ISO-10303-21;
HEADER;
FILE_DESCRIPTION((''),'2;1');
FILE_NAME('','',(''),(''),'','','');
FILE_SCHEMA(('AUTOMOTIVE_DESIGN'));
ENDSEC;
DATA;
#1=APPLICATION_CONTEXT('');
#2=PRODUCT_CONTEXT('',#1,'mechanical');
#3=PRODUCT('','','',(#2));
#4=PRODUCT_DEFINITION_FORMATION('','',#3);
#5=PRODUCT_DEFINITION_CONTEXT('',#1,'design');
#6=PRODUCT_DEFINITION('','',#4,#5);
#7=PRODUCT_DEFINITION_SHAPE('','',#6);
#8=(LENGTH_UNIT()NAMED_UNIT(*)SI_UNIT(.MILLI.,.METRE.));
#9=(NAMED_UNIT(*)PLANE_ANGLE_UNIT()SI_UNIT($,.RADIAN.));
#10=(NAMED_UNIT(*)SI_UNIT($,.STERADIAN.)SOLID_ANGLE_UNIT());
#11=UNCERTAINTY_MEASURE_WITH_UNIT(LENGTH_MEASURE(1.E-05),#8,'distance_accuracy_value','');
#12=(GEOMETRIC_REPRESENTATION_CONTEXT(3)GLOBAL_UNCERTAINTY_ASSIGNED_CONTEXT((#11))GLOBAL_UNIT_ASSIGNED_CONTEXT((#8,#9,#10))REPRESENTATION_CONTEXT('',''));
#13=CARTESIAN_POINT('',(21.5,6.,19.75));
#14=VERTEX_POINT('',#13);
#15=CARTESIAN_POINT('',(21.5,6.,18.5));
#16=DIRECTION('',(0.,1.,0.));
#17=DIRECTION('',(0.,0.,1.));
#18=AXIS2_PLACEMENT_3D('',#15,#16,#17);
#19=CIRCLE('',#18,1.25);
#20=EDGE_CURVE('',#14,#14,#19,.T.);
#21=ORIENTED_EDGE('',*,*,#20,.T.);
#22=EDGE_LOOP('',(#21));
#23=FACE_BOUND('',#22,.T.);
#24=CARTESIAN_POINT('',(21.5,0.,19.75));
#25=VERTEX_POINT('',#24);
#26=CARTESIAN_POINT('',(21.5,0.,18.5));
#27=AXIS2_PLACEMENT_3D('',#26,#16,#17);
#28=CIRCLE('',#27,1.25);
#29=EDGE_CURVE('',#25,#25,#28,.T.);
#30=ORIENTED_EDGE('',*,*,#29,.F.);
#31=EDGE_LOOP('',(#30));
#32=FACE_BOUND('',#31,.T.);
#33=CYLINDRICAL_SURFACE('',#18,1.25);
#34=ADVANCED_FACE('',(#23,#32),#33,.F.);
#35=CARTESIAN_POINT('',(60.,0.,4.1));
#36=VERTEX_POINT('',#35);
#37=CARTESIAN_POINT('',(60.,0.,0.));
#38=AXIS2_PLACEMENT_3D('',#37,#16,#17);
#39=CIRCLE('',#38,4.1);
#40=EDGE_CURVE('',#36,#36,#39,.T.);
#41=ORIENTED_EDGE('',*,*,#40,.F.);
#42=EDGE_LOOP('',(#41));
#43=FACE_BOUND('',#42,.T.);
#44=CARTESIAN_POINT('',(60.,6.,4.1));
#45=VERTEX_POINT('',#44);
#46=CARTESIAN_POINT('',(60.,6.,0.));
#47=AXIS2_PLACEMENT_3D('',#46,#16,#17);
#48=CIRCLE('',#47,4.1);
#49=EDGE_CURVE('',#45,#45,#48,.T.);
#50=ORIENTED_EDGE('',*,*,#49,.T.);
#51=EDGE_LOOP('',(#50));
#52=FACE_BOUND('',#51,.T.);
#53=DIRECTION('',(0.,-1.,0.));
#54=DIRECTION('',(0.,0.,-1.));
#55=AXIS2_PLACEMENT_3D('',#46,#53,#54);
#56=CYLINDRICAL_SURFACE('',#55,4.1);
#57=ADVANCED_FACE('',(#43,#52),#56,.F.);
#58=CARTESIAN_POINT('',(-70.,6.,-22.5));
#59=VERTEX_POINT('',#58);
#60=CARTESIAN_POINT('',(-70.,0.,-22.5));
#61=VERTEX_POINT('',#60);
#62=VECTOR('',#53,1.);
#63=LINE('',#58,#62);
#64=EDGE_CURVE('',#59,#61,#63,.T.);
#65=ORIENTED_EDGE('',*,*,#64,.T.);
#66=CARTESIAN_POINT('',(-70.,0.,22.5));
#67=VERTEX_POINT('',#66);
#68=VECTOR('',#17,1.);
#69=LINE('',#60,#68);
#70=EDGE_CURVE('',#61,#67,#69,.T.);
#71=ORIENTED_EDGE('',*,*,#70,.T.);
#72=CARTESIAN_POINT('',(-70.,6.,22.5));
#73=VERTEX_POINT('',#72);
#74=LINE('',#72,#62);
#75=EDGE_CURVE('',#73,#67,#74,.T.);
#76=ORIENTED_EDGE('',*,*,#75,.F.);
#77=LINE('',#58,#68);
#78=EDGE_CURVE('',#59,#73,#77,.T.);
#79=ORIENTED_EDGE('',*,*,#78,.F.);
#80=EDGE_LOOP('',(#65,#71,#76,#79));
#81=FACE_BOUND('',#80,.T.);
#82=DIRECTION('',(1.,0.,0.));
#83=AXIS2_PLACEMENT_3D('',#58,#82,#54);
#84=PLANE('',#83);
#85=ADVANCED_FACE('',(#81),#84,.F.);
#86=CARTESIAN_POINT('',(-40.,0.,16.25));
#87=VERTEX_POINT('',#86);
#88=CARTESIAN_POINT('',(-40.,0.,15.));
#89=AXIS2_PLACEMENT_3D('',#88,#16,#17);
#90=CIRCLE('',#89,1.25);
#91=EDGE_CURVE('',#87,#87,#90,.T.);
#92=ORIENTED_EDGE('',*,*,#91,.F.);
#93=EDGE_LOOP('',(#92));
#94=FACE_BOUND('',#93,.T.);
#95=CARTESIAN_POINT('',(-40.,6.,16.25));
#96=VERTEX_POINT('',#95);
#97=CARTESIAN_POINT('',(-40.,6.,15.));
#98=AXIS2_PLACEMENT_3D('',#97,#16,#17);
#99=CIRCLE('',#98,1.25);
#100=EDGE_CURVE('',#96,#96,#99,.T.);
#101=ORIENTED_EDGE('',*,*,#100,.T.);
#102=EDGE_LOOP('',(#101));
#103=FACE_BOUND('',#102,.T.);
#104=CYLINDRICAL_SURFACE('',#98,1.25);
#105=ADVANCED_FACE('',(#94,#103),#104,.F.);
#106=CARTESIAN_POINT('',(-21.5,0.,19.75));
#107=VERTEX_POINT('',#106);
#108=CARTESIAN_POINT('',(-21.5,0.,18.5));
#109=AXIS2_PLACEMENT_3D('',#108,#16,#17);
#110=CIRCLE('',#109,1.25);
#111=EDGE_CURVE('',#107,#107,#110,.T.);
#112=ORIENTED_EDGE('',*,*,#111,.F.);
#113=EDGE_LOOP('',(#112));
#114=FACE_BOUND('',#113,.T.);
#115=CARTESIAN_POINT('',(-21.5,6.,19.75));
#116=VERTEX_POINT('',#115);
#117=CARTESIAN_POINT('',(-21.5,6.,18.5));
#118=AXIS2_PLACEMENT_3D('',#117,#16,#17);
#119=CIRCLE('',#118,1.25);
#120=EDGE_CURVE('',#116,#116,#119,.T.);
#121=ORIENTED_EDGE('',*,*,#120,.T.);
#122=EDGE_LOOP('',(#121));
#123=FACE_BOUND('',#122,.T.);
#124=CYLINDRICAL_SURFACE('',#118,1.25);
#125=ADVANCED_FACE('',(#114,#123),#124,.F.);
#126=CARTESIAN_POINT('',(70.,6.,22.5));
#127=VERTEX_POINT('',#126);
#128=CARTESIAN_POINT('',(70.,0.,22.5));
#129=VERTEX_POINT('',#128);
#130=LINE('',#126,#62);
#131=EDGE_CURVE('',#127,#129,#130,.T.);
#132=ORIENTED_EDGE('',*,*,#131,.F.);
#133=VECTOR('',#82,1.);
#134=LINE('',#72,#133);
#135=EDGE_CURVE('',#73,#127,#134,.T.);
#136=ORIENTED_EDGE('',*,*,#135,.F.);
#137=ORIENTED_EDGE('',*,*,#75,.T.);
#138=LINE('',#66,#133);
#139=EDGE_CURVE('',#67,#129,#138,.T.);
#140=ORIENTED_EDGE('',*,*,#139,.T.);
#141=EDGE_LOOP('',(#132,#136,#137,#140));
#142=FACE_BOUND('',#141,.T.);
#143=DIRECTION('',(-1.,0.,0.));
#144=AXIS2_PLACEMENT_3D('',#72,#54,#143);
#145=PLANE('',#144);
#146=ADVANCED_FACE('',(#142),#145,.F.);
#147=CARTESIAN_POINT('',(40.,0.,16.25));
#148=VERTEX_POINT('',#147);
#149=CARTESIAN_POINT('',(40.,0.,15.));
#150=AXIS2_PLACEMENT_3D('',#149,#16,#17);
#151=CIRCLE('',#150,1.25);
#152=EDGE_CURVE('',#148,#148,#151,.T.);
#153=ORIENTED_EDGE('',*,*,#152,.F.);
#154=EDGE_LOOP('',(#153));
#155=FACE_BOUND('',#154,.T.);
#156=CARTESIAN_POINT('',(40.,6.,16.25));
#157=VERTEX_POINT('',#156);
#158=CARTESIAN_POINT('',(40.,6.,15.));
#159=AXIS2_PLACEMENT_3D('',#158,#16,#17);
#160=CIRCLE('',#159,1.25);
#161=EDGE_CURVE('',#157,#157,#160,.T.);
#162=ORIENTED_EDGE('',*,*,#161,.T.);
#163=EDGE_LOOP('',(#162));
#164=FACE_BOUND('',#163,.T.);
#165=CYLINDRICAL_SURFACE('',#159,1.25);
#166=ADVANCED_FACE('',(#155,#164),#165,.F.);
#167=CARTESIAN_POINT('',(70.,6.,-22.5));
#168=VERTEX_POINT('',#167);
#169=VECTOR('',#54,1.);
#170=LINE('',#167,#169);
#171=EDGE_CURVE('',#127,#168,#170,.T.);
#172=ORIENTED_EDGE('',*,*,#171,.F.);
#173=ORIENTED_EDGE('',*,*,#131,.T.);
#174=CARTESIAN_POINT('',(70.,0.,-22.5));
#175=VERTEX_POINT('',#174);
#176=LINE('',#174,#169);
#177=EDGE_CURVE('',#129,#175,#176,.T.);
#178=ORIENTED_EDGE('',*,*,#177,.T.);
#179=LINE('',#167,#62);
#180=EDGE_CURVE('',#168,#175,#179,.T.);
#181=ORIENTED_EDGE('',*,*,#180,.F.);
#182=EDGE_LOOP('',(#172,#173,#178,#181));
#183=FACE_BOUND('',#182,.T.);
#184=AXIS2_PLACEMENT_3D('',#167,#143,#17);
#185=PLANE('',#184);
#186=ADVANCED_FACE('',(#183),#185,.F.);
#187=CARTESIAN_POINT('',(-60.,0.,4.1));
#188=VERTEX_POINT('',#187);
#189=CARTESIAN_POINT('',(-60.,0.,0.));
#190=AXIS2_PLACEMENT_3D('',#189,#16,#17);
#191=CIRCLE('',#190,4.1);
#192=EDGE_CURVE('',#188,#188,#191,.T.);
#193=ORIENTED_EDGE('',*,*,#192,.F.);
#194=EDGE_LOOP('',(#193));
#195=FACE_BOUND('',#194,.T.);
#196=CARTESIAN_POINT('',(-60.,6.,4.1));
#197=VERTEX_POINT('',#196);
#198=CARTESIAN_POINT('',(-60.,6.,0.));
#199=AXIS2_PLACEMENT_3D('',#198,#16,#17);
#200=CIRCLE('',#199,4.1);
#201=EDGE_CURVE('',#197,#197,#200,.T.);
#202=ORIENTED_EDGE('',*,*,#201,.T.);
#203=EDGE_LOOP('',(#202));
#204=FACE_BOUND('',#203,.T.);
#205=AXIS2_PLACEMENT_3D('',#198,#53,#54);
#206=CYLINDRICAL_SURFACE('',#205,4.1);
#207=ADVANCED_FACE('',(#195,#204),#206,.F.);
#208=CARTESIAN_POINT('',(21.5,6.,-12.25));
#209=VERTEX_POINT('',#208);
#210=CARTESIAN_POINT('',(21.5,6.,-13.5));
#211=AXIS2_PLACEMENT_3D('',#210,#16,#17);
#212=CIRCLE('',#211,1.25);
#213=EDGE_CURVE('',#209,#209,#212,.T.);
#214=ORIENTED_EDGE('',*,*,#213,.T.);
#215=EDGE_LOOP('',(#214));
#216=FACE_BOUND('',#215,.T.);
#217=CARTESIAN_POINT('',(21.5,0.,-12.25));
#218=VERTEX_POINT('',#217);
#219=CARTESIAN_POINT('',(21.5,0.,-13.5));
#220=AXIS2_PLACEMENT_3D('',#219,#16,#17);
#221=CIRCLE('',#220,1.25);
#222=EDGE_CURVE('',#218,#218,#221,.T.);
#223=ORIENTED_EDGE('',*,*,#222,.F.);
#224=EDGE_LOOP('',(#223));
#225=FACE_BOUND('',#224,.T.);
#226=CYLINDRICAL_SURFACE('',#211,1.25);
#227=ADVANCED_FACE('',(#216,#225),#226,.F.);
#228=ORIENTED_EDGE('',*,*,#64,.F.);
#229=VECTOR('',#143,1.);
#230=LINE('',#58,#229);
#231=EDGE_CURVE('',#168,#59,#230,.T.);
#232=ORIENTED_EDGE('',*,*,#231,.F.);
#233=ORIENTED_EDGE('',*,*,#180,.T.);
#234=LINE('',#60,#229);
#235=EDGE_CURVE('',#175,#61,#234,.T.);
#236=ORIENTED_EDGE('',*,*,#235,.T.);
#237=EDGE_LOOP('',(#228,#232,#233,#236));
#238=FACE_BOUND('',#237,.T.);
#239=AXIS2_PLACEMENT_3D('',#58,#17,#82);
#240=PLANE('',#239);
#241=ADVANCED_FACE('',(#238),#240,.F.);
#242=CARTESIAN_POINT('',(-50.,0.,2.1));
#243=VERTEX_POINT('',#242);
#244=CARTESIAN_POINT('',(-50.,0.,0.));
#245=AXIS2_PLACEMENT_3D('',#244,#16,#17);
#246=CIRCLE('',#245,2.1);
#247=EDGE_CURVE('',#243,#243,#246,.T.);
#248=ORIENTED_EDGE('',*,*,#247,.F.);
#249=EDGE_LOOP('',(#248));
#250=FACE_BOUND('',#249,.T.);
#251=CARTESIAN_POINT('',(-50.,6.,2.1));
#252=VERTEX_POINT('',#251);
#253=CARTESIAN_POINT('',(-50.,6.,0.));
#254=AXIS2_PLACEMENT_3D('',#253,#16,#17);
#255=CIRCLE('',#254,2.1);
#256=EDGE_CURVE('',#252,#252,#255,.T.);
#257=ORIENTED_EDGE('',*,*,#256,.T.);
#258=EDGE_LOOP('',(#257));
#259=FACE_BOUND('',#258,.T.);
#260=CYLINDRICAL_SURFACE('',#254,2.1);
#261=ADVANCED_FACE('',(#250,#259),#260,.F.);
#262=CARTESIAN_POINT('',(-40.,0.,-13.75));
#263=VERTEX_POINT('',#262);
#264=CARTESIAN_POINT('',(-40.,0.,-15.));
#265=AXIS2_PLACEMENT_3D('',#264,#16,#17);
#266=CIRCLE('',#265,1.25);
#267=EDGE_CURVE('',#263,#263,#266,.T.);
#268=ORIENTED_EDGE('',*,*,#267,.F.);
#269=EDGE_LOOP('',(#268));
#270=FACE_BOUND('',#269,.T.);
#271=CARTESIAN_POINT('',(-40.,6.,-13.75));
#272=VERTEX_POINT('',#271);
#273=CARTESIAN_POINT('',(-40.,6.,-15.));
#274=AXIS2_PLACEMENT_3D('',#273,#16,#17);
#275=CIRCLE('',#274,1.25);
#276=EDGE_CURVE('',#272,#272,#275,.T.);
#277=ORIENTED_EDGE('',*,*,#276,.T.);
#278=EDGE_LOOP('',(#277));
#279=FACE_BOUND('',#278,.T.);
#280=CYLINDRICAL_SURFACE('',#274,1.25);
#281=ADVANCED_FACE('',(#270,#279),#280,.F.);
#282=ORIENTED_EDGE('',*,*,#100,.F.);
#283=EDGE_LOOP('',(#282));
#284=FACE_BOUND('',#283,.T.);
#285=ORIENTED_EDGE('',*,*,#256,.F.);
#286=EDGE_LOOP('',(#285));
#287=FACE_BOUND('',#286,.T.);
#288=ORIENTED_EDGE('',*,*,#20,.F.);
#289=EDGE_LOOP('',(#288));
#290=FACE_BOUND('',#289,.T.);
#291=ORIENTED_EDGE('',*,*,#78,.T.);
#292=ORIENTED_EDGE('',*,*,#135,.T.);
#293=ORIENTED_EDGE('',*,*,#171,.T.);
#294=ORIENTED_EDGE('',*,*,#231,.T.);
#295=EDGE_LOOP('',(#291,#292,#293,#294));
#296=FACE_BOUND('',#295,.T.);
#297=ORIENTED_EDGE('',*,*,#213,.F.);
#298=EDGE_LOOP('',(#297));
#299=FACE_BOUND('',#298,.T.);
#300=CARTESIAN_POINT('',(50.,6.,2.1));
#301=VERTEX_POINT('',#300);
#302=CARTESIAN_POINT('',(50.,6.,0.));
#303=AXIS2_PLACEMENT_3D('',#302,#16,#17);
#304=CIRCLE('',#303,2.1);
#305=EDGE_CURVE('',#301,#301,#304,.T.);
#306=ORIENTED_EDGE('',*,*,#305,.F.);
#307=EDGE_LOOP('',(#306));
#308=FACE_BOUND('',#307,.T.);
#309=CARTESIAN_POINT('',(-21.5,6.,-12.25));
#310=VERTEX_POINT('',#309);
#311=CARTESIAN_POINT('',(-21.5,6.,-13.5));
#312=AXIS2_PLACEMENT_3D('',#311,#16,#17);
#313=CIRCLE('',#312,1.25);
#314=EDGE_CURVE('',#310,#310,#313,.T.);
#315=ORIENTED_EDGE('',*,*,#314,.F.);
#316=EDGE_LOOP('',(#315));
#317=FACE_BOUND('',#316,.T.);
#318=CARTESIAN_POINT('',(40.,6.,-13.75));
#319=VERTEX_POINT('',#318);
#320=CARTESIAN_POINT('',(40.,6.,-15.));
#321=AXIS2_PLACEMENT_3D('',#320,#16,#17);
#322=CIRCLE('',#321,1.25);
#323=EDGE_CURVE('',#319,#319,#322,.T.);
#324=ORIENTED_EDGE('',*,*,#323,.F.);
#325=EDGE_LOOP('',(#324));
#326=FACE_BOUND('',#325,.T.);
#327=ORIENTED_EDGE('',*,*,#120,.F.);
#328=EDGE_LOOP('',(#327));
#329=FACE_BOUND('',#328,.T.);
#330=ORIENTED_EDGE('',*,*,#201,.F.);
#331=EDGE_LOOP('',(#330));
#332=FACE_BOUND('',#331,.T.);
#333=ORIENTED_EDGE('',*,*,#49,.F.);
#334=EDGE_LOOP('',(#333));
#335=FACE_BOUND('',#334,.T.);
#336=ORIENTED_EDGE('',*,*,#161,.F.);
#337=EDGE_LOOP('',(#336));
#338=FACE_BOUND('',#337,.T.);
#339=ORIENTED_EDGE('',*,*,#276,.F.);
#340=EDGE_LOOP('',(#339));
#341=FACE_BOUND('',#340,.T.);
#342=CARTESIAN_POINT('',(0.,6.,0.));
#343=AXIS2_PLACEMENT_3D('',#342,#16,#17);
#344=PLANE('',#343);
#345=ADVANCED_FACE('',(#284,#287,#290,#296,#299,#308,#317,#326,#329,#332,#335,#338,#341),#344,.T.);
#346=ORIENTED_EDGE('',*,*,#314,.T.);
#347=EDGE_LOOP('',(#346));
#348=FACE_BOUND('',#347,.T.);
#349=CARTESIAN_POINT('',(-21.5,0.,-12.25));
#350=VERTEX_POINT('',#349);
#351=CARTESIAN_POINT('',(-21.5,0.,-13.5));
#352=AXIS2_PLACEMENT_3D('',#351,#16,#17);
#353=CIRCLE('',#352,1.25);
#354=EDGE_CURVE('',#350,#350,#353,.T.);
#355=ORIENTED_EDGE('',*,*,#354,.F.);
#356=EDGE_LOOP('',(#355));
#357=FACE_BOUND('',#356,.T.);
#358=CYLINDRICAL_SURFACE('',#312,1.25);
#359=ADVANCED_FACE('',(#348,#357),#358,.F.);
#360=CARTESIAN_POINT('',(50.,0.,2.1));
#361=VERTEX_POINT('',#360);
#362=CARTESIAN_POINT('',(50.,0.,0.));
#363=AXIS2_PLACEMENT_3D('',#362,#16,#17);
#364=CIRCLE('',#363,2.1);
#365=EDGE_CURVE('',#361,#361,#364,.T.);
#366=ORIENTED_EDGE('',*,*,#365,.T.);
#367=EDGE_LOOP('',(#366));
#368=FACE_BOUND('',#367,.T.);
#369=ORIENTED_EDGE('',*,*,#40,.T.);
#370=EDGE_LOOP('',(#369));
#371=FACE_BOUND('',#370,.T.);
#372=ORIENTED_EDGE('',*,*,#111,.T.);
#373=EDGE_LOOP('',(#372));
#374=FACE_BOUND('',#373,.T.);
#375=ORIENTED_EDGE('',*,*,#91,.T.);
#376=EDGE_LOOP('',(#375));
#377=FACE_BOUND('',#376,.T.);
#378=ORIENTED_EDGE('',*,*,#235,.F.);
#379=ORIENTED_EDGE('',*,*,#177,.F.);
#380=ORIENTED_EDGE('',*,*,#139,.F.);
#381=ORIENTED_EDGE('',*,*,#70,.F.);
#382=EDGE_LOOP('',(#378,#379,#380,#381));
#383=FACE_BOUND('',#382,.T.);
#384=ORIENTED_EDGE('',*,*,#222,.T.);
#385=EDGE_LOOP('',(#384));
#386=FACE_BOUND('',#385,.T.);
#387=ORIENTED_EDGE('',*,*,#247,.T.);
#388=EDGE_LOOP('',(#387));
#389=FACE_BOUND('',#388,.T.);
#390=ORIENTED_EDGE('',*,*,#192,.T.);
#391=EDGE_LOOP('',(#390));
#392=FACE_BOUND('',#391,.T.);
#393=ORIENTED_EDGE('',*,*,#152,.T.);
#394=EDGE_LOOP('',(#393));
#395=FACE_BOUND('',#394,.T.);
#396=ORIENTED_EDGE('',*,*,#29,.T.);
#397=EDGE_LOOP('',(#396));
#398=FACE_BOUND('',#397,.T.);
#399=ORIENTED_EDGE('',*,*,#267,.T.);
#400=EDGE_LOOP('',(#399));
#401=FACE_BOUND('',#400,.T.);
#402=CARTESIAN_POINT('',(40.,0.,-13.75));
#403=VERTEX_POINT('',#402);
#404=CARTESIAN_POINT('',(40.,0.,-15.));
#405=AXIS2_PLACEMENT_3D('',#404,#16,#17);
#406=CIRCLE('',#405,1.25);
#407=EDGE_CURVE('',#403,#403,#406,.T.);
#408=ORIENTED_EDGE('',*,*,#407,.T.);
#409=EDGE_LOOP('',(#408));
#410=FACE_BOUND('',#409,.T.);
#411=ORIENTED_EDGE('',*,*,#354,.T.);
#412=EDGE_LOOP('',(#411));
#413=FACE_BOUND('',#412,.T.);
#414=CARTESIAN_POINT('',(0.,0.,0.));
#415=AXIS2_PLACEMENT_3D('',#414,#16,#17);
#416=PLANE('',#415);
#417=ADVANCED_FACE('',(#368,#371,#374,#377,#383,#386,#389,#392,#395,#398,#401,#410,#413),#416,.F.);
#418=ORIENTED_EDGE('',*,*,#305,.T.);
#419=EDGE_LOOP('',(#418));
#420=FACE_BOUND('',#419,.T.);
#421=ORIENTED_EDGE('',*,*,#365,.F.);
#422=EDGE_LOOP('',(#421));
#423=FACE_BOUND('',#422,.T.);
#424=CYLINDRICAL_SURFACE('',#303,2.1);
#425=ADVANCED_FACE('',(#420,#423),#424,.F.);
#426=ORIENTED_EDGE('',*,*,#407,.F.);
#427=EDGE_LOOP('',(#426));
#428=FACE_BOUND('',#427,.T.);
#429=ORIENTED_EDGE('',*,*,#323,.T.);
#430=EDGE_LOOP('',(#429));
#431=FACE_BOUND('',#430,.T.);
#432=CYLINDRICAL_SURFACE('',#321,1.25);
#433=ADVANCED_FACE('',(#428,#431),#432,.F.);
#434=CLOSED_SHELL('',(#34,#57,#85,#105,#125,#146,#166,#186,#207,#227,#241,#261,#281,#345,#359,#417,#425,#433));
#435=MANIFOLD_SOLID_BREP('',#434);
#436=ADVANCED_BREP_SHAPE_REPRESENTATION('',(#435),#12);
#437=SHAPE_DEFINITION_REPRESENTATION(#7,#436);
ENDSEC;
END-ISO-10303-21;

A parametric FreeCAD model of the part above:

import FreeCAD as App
import Part
import Sketcher

V = App.Vector

doc = App.newDocument("Part")
body = doc.addObject("PartDesign::Body", "Body")

sketch1 = body.newObject("Sketcher::SketchObject", "Sketch")
sketch1.AttachmentSupport = (doc.getObject("XZ_Plane"), [""])
sketch1.MapMode = "FlatFace"
sketch1.addGeometry([
    Part.LineSegment(V(-70, -22.5, 0), V(-70, 22.5, 0)),
    Part.LineSegment(V(-70, 22.5, 0), V(70, 22.5, 0)),
    Part.LineSegment(V(70, 22.5, 0), V(70, -22.5, 0)),
    Part.LineSegment(V(70, -22.5, 0), V(-70, -22.5, 0)),
    Part.Circle(V(-40, 15, 0), V(0, 0, 1), 0.5),
    Part.Circle(V(40, 15, 0), V(0, 0, 1), 0.5),
    Part.Circle(V(-60, 0, 0), V(0, 0, 1), 4.1),
    Part.Circle(V(-40, -15, 0), V(0, 0, 1), 0.5),
    Part.Circle(V(60, 0, 0), V(0, 0, 1), 4.1),
    Part.Circle(V(40, -15, 0), V(0, 0, 1), 0.5),
], False)
sketch1.addConstraint([
    Sketcher.Constraint("Coincident", 0, 2, 1, 1),
    Sketcher.Constraint("Coincident", 1, 2, 2, 1),
    Sketcher.Constraint("Coincident", 2, 2, 3, 1),
    Sketcher.Constraint("Coincident", 3, 2, 0, 1),
    Sketcher.Constraint("Vertical", 0),
    Sketcher.Constraint("Horizontal", 1),
    Sketcher.Constraint("Vertical", 2),
    Sketcher.Constraint("Horizontal", 3),
    Sketcher.Constraint("Equal", 4, 5),
    Sketcher.Constraint("Equal", 5, 7),
    Sketcher.Constraint("Equal", 6, 8),
    Sketcher.Constraint("Equal", 7, 9),
    Sketcher.Constraint("Symmetric", 5, 3, 7, 3, -1, 1),
    Sketcher.Constraint("Symmetric", 6, 3, 8, 3, -1, 1),
    Sketcher.Constraint("Symmetric", 4, 3, 9, 3, -1, 1),
    Sketcher.Constraint("Symmetric", 0, 2, 2, 2, -1, 1),
    Sketcher.Constraint("Symmetric", 4, 3, 5, 3, -2),
    Sketcher.Constraint("PointOnObject", 6, 3, -1),
    Sketcher.Constraint("Diameter", 4, 1.0),
    Sketcher.Constraint("Diameter", 6, 8.2),
    Sketcher.Constraint("DistanceX", 1, 1, 1, 2, 140.0),
    Sketcher.Constraint("DistanceY", 0, 1, 0, 2, 45.0),
    Sketcher.Constraint("DistanceX", 4, 3, -1, 1, 40.0),
    Sketcher.Constraint("DistanceY", -1, 1, 4, 3, 15.0),
    Sketcher.Constraint("DistanceX", 6, 3, -1, 1, 60.0),
])
pad1 = body.newObject("PartDesign::Pad", "Pad")
pad1.Profile = sketch1
pad1.Length = 6
pad1.Reversed = True

sketch2 = body.newObject("Sketcher::SketchObject", "Sketch001")
sketch2.AttachmentSupport = (doc.getObject("XZ_Plane"), [""])
sketch2.MapMode = "FlatFace"
sketch2.AttachmentOffset = App.Placement(V(0, 0, -6), App.Rotation())
sketch2.addGeometry([
    Part.Circle(V(-40, -15, 0), V(0, 0, 1), 1.25),
    Part.Circle(V(-40, 15, 0), V(0, 0, 1), 1.25),
    Part.Circle(V(40, 15, 0), V(0, 0, 1), 1.25),
    Part.Circle(V(40, -15, 0), V(0, 0, 1), 1.25),
], False)
sketch2.addConstraint([
    Sketcher.Constraint("Equal", 0, 1),
    Sketcher.Constraint("Equal", 1, 2),
    Sketcher.Constraint("Equal", 2, 3),
    Sketcher.Constraint("Symmetric", 0, 3, 2, 3, -1, 1),
    Sketcher.Constraint("Symmetric", 1, 3, 3, 3, -1, 1),
    Sketcher.Constraint("Symmetric", 1, 3, 2, 3, -2),
    Sketcher.Constraint("Diameter", 0, 2.5),
    Sketcher.Constraint("DistanceX", 0, 3, -1, 1, 40.0),
    Sketcher.Constraint("DistanceY", 0, 3, -1, 1, 15.0),
])
doc.recompute()
hole = body.newObject("PartDesign::Hole", "Hole")
hole.Profile = sketch2
hole.ThreadType = "None"
hole.Diameter = 2.5
hole.DepthType = "ThroughAll"
hole.Reversed = True

sketch3 = body.newObject("Sketcher::SketchObject", "Sketch002")
sketch3.AttachmentSupport = (doc.getObject("XZ_Plane"), [""])
sketch3.MapMode = "FlatFace"
sketch3.AttachmentOffset = App.Placement(V(0, 0, -6), App.Rotation())
sketch3.addGeometry([
    Part.Circle(V(-21.5, -13.5, 0), V(0, 0, 1), 1.25),
    Part.Circle(V(21.5, -13.5, 0), V(0, 0, 1), 1.25),
    Part.Circle(V(21.5, 18.5, 0), V(0, 0, 1), 1.25),
    Part.Circle(V(-21.5, 18.5, 0), V(0, 0, 1), 1.25),
], False)
sketch3.addConstraint([
    Sketcher.Constraint("Equal", 0, 1),
    Sketcher.Constraint("Equal", 1, 2),
    Sketcher.Constraint("Equal", 2, 3),
    Sketcher.Constraint("Symmetric", 0, 3, 1, 3, -2),
    Sketcher.Constraint("Symmetric", 2, 3, 3, 3, -2),
    Sketcher.Constraint("Vertical", 1, 3, 2, 3),
    Sketcher.Constraint("Diameter", 0, 2.5),
    Sketcher.Constraint("DistanceX", 0, 3, 1, 3, 43.0),
    Sketcher.Constraint("DistanceY", 1, 3, 2, 3, 32.0),
    Sketcher.Constraint("DistanceY", 0, 3, -1, 1, 13.5),
])
doc.recompute()
hole2 = body.newObject("PartDesign::Hole", "Hole001")
hole2.Profile = sketch3
hole2.ThreadType = "None"
hole2.Diameter = 2.5
hole2.DepthType = "ThroughAll"
hole2.Reversed = True

sketch4 = body.newObject("Sketcher::SketchObject", "Sketch003")
sketch4.AttachmentSupport = (doc.getObject("XZ_Plane"), [""])
sketch4.MapMode = "FlatFace"
sketch4.AttachmentOffset = App.Placement(V(0, 0, -6), App.Rotation())
sketch4.addGeometry([
    Part.Circle(V(50, 0, 0), V(0, 0, 1), 2.1),
    Part.Circle(V(-50, 0, 0), V(0, 0, 1), 2.1),
], False)
sketch4.addConstraint([
    Sketcher.Constraint("Equal", 0, 1),
    Sketcher.Constraint("Symmetric", 0, 3, 1, 3, -1, 1),
    Sketcher.Constraint("PointOnObject", 0, 3, -1),
    Sketcher.Constraint("Diameter", 0, 4.2),
    Sketcher.Constraint("DistanceX", -1, 1, 0, 3, 50.0),
])
doc.recompute()
hole3 = body.newObject("PartDesign::Hole", "Hole002")
hole3.Profile = sketch4
hole3.ThreadType = "None"
hole3.Diameter = 4.2
hole3.DepthType = "ThroughAll"
hole3.Reversed = True

doc.recompute()
